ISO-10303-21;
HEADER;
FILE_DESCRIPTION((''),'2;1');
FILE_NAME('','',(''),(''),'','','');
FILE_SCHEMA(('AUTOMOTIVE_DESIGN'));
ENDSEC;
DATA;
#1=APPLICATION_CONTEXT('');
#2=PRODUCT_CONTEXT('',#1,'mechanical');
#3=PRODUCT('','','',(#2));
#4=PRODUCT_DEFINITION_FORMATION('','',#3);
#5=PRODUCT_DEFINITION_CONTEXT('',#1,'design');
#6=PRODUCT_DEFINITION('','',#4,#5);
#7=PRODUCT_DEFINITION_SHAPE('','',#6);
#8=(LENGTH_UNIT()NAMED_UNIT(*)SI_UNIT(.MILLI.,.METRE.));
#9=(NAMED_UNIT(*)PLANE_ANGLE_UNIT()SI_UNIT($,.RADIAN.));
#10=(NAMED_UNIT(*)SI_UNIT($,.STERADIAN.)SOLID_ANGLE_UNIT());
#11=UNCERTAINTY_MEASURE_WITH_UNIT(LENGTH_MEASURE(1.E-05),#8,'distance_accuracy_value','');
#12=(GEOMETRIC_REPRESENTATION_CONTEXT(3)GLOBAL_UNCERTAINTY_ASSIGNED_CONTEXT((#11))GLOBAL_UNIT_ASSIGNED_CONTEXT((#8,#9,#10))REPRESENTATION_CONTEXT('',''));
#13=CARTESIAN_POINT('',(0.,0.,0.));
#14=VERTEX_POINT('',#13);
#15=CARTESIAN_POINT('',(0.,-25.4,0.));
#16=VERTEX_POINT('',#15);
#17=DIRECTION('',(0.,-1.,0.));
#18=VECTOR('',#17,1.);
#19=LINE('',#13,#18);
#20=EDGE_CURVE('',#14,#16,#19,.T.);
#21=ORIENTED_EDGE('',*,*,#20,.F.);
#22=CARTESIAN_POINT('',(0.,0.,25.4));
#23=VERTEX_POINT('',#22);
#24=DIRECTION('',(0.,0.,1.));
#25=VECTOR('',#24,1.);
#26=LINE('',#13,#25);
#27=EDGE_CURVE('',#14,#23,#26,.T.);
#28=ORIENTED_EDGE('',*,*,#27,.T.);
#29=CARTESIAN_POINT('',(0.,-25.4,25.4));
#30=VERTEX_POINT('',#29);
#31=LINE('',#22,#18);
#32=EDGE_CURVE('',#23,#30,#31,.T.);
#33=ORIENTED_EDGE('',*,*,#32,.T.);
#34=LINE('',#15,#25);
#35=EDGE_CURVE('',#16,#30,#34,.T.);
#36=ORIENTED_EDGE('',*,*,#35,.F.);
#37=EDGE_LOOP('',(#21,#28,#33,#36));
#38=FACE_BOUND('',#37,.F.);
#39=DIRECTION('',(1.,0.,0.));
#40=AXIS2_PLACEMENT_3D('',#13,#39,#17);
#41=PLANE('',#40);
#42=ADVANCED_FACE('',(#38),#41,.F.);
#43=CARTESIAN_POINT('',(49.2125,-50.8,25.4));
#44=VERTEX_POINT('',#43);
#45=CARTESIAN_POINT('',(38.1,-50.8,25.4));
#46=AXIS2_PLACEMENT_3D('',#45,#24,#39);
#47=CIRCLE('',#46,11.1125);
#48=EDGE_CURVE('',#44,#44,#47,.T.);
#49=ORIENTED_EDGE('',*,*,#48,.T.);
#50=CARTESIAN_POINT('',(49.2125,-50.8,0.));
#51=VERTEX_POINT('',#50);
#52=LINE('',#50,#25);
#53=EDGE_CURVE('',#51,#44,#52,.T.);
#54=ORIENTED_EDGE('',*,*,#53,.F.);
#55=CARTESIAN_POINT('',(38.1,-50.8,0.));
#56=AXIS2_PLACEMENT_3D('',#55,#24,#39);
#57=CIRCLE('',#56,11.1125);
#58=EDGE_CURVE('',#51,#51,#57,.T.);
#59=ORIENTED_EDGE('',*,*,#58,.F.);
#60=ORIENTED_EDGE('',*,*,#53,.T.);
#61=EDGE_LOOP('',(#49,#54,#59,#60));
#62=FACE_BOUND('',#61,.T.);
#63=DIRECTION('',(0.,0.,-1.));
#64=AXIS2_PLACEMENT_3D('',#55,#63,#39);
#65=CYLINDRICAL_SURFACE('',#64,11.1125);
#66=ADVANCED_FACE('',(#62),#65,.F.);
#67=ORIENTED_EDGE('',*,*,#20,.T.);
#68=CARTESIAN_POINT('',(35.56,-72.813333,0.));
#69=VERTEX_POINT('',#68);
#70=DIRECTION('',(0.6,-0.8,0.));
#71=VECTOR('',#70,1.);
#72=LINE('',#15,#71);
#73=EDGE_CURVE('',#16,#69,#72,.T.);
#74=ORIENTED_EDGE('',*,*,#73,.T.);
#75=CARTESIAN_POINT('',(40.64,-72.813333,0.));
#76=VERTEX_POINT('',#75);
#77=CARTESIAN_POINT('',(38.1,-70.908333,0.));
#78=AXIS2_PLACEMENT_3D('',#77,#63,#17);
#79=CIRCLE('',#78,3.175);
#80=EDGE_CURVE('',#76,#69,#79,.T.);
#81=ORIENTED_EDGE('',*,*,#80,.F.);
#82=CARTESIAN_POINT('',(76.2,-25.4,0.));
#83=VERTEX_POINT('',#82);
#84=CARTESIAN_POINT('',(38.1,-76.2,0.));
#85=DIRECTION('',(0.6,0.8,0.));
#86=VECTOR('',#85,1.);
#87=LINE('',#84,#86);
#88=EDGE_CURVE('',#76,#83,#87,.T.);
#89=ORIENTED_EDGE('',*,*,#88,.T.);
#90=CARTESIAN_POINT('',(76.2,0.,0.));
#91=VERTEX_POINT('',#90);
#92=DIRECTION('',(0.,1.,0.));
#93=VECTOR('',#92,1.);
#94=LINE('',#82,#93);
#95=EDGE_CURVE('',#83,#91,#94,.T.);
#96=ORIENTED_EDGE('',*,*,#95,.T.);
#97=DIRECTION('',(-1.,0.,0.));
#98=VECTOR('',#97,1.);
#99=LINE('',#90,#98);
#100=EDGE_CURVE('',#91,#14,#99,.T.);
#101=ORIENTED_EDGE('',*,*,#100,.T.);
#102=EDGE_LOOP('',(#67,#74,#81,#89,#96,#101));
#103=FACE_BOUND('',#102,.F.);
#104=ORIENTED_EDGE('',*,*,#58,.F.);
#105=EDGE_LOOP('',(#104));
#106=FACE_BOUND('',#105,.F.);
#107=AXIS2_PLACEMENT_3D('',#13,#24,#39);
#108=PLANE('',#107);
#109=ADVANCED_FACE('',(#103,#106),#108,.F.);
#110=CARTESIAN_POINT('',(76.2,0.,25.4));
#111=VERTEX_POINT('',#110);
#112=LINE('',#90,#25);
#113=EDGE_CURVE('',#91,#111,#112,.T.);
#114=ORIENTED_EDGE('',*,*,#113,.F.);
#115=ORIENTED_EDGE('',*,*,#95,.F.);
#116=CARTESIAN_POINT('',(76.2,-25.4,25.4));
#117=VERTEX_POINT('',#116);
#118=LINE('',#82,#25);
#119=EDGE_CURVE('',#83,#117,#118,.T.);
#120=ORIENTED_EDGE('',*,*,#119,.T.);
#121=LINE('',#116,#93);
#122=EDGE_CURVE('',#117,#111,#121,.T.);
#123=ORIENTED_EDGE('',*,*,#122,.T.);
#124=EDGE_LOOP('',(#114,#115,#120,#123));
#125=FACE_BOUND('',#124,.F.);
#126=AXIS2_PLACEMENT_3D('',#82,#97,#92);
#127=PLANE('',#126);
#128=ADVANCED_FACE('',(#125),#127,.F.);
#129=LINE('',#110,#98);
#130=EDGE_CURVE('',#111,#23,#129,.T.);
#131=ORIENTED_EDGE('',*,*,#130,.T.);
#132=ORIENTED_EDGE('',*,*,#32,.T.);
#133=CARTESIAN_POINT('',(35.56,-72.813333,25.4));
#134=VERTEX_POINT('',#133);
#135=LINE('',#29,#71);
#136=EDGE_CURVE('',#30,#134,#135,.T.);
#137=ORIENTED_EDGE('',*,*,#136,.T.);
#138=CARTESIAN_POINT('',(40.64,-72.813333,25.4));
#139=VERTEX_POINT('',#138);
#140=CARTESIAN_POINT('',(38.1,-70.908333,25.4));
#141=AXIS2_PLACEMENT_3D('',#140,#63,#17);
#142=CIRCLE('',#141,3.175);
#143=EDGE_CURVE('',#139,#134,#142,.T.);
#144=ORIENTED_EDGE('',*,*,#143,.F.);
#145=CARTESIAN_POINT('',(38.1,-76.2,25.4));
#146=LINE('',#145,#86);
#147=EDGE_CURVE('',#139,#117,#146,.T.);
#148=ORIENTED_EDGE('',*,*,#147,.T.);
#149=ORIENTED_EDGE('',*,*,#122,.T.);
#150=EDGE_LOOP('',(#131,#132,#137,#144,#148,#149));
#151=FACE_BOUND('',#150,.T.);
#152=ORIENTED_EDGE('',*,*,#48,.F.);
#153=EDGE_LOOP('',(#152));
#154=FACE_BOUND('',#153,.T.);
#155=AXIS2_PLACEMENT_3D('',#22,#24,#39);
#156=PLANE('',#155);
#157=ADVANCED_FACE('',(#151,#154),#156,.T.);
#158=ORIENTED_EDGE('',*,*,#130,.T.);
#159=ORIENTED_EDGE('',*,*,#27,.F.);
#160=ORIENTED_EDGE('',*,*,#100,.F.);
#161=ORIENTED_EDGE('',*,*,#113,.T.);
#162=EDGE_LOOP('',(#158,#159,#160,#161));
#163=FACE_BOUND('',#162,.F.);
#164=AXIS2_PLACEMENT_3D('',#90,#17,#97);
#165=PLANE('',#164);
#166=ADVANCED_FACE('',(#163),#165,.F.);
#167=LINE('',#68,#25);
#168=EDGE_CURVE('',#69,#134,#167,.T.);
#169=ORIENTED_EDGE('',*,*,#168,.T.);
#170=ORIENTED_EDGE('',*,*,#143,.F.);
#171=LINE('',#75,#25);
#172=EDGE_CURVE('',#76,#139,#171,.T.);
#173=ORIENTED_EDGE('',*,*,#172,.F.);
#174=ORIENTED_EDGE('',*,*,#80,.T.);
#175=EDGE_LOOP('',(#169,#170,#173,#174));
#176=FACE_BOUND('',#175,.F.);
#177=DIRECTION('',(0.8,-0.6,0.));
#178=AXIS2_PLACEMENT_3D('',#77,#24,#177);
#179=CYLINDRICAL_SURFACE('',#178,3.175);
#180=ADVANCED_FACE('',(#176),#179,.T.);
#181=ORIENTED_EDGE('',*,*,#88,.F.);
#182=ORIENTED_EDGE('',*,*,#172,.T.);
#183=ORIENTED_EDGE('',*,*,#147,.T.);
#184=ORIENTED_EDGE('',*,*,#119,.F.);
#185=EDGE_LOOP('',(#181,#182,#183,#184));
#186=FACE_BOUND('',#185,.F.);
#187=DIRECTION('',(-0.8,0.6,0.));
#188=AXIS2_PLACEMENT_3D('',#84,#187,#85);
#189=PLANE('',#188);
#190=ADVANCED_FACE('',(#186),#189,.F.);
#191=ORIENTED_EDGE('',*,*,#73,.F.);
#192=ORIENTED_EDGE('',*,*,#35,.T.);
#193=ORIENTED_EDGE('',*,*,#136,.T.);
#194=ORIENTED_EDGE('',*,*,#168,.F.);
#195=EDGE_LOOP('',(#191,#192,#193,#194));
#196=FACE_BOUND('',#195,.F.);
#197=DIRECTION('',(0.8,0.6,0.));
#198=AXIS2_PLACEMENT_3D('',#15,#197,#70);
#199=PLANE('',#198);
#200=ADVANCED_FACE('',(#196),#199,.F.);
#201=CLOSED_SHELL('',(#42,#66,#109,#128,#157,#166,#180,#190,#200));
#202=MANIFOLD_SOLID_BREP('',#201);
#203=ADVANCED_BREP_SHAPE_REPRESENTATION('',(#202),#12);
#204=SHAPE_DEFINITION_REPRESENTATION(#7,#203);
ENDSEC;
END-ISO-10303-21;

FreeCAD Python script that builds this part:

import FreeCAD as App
import Part
import Sketcher
from FreeCAD import Vector
Q = App.Units.Quantity


def edges_at(feature, points):
    """Names of the edges that pass closest to the given points."""
    edges = feature.Shape.Edges
    near = lambda p: min(range(len(edges)), key=lambda i: edges[i].distToShape(Part.Vertex(*p))[0])
    return sorted({f"Edge{near(p) + 1}" for p in points})

doc = App.newDocument("Part")
body = doc.addObject("PartDesign::Body", "Body")

# Sketch on XY plane
sketch1 = body.newObject("Sketcher::SketchObject", "Sketch")
sketch1.AttachmentSupport = (doc.getObject("XY_Plane"), [""])
sketch1.MapMode = "FlatFace"
sketch1.addGeometry([
    Part.LineSegment(Vector(76, 0, 0), Vector(0, 0, 0)),  # 0
    Part.LineSegment(Vector(0, 0, 0), Vector(0, -25, 0)),  # 1
    Part.LineSegment(Vector(0, -25, 0), Vector(38, -76, 0)),  # 2
    Part.LineSegment(Vector(38, -76, 0), Vector(76, -25, 0)),  # 3
    Part.LineSegment(Vector(76, -25, 0), Vector(76, 0, 0)),  # 4
    Part.Circle(Vector(38, -51, 0), Vector(0, 0, 1), 11),  # 5
], False)
sketch1.addConstraint([
    Sketcher.Constraint("Coincident", 0, 2, 1, 1),
    Sketcher.Constraint("Coincident", 1, 2, 2, 1),
    Sketcher.Constraint("Coincident", 2, 2, 3, 1),
    Sketcher.Constraint("Coincident", 3, 2, 4, 1),
    Sketcher.Constraint("Coincident", 4, 2, 0, 1),
    Sketcher.Constraint("Horizontal", 0),
    Sketcher.Constraint("Vertical", 1),
    Sketcher.Constraint("Vertical", 4),
    Sketcher.Constraint("Coincident", 0, 2, -1, 1),
    Sketcher.Constraint("Horizontal", 1, 2, 3, 2),
    Sketcher.Constraint("Vertical", 5, 3, 2, 2),
    Sketcher.Constraint("Equal", 2, 3),
    Sketcher.Constraint("DistanceX", 0, 2, 0, 1, Q("3 in")),
    Sketcher.Constraint("DistanceY", 1, 2, 1, 1, Q("1 in")),
    Sketcher.Constraint("Diameter", 5, Q("0.875 in")),
    Sketcher.Constraint("DistanceY", 5, 3, -1, 1, Q("2 in")),
    Sketcher.Constraint("DistanceY", 2, 2, -1, 1, Q("3 in")),
])
pad1 = body.newObject("PartDesign::Pad", "Pad")
pad1.Profile = sketch1
pad1.Length = Q("1 in")
doc.recompute()

fillet = body.newObject("PartDesign::Fillet", "Fillet")
fillet.Base = (pad1, edges_at(pad1, [(38.1, -76.2, 12.7)]))
fillet.Radius = Q("0.125 in")

doc.recompute()
